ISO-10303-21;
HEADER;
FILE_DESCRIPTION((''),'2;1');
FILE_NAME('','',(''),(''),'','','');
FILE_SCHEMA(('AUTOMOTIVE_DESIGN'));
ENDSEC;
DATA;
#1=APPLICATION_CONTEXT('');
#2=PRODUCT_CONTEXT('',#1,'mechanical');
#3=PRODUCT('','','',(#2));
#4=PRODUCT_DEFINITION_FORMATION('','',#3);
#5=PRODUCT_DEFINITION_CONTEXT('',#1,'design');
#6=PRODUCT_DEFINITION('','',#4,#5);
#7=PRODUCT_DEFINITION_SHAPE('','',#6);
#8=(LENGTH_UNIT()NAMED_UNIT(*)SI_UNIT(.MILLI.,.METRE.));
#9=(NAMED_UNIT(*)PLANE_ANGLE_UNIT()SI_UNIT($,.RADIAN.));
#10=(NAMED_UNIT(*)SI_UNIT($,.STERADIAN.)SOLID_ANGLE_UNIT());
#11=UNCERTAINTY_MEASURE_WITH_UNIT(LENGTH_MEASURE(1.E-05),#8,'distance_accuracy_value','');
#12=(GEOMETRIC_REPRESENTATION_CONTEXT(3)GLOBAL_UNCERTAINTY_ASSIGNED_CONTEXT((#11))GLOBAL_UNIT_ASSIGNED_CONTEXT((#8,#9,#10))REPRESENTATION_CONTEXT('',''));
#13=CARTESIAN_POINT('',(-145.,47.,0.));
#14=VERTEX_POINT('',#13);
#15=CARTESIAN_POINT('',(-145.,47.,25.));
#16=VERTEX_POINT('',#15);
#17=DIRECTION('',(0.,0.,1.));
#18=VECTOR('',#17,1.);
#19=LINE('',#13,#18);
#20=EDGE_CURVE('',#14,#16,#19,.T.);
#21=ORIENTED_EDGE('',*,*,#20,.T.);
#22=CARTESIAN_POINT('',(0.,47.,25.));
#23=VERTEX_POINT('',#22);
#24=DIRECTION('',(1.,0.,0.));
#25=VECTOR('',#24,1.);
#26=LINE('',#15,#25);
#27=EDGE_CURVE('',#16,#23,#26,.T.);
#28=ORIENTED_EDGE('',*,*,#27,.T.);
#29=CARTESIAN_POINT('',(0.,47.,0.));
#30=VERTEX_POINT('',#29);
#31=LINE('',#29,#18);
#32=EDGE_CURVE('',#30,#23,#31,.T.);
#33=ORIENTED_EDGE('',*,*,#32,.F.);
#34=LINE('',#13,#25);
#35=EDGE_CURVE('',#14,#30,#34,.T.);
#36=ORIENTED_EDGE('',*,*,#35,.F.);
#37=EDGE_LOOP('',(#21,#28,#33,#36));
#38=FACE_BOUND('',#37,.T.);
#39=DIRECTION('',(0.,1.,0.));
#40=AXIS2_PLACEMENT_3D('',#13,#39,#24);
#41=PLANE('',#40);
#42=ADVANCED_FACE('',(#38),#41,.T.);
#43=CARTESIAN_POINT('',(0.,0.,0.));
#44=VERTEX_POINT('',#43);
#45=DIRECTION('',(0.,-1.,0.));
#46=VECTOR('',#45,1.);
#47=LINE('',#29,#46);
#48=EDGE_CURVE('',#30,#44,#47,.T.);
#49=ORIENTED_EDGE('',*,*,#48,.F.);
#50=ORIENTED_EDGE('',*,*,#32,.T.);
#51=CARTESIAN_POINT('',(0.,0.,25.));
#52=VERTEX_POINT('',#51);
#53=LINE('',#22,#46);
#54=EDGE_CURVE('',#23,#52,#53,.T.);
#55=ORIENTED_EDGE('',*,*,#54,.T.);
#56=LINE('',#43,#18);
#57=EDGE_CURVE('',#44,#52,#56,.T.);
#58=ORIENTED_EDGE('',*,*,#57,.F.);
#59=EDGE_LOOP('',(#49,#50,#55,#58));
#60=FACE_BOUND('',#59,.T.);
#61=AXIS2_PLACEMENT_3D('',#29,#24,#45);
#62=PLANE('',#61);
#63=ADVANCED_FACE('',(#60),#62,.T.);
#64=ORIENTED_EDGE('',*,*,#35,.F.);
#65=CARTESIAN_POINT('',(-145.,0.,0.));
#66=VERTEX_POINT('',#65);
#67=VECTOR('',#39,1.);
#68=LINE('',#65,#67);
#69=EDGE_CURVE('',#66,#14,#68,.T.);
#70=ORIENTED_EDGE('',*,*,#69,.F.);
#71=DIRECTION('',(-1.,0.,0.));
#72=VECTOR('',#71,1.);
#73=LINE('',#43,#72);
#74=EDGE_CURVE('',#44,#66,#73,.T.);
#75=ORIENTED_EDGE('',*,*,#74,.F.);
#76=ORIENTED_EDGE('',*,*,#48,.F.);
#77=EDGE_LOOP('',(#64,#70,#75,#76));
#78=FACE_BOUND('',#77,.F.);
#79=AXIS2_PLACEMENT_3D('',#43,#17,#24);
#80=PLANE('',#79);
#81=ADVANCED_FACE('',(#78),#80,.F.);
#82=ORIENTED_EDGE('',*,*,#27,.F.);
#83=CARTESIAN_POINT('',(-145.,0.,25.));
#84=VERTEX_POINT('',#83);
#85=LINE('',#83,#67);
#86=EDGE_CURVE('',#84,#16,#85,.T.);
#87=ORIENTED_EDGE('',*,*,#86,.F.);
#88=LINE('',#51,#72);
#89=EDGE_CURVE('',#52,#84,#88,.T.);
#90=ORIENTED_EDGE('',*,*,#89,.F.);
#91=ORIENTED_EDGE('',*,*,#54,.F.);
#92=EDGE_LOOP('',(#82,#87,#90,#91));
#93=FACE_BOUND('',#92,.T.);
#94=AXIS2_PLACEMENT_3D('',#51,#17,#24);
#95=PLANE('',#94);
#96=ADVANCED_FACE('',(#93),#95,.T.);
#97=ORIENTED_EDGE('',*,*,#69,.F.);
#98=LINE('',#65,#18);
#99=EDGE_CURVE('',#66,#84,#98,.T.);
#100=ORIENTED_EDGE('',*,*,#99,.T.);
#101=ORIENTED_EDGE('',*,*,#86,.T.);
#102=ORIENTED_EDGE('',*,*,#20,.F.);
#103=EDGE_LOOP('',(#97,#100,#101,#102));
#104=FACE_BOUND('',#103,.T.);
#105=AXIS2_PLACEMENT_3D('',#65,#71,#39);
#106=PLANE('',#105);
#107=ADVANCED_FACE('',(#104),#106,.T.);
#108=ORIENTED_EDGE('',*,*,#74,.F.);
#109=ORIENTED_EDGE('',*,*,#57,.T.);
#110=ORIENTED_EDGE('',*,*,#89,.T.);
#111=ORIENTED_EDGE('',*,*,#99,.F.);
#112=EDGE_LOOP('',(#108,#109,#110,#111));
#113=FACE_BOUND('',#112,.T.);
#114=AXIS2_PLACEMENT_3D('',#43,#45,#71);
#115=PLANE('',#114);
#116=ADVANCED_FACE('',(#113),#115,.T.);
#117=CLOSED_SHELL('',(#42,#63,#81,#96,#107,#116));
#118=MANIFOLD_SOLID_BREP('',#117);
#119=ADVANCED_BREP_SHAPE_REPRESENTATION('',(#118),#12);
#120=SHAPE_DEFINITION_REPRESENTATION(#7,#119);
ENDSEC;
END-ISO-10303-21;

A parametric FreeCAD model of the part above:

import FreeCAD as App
import Part
import Sketcher
Q = App.Units.Quantity


def add_polygon(sketch, points):
    """Adds a closed chain of lines whose ends are joined by coincident constraints."""
    first, n = sketch.GeometryCount, len(points)
    for a, b in zip(points, points[1:] + points[:1]):
        sketch.addGeometry(Part.LineSegment(App.Vector(*a, 0), App.Vector(*b, 0)), False)
    for i in range(n):
        sketch.addConstraint(Sketcher.Constraint("Coincident", first + i, 2, first + (i + 1) % n, 1))

doc = App.newDocument("Part")
body = doc.addObject("PartDesign::Body", "Body")

sketch1 = doc.addObject("Sketcher::SketchObject", "Sketch")
body.addObject(sketch1)
sketch1.AttachmentSupport = (doc.XY_Plane, [""])
sketch1.MapMode = "FlatFace"
add_polygon(sketch1, [(-145, 0), (0, 0), (0, 47), (-145, 47)])
sketch1.addConstraint([
    Sketcher.Constraint("Horizontal", 0),
    Sketcher.Constraint("Vertical", 1),
    Sketcher.Constraint("Horizontal", 2),
    Sketcher.Constraint("Vertical", 3),
    Sketcher.Constraint("Coincident", 0, 2, -1, 1),
    Sketcher.Constraint("DistanceX", 0, 1, 0, 2, Q("145 mm")),
    Sketcher.Constraint("DistanceY", 1, 1, 1, 2, Q("47 mm")),
])
pad1 = doc.addObject("PartDesign::Pad", "Pad")
body.addObject(pad1)
pad1.Profile = sketch1
pad1.Length = 25

doc.recompute()
